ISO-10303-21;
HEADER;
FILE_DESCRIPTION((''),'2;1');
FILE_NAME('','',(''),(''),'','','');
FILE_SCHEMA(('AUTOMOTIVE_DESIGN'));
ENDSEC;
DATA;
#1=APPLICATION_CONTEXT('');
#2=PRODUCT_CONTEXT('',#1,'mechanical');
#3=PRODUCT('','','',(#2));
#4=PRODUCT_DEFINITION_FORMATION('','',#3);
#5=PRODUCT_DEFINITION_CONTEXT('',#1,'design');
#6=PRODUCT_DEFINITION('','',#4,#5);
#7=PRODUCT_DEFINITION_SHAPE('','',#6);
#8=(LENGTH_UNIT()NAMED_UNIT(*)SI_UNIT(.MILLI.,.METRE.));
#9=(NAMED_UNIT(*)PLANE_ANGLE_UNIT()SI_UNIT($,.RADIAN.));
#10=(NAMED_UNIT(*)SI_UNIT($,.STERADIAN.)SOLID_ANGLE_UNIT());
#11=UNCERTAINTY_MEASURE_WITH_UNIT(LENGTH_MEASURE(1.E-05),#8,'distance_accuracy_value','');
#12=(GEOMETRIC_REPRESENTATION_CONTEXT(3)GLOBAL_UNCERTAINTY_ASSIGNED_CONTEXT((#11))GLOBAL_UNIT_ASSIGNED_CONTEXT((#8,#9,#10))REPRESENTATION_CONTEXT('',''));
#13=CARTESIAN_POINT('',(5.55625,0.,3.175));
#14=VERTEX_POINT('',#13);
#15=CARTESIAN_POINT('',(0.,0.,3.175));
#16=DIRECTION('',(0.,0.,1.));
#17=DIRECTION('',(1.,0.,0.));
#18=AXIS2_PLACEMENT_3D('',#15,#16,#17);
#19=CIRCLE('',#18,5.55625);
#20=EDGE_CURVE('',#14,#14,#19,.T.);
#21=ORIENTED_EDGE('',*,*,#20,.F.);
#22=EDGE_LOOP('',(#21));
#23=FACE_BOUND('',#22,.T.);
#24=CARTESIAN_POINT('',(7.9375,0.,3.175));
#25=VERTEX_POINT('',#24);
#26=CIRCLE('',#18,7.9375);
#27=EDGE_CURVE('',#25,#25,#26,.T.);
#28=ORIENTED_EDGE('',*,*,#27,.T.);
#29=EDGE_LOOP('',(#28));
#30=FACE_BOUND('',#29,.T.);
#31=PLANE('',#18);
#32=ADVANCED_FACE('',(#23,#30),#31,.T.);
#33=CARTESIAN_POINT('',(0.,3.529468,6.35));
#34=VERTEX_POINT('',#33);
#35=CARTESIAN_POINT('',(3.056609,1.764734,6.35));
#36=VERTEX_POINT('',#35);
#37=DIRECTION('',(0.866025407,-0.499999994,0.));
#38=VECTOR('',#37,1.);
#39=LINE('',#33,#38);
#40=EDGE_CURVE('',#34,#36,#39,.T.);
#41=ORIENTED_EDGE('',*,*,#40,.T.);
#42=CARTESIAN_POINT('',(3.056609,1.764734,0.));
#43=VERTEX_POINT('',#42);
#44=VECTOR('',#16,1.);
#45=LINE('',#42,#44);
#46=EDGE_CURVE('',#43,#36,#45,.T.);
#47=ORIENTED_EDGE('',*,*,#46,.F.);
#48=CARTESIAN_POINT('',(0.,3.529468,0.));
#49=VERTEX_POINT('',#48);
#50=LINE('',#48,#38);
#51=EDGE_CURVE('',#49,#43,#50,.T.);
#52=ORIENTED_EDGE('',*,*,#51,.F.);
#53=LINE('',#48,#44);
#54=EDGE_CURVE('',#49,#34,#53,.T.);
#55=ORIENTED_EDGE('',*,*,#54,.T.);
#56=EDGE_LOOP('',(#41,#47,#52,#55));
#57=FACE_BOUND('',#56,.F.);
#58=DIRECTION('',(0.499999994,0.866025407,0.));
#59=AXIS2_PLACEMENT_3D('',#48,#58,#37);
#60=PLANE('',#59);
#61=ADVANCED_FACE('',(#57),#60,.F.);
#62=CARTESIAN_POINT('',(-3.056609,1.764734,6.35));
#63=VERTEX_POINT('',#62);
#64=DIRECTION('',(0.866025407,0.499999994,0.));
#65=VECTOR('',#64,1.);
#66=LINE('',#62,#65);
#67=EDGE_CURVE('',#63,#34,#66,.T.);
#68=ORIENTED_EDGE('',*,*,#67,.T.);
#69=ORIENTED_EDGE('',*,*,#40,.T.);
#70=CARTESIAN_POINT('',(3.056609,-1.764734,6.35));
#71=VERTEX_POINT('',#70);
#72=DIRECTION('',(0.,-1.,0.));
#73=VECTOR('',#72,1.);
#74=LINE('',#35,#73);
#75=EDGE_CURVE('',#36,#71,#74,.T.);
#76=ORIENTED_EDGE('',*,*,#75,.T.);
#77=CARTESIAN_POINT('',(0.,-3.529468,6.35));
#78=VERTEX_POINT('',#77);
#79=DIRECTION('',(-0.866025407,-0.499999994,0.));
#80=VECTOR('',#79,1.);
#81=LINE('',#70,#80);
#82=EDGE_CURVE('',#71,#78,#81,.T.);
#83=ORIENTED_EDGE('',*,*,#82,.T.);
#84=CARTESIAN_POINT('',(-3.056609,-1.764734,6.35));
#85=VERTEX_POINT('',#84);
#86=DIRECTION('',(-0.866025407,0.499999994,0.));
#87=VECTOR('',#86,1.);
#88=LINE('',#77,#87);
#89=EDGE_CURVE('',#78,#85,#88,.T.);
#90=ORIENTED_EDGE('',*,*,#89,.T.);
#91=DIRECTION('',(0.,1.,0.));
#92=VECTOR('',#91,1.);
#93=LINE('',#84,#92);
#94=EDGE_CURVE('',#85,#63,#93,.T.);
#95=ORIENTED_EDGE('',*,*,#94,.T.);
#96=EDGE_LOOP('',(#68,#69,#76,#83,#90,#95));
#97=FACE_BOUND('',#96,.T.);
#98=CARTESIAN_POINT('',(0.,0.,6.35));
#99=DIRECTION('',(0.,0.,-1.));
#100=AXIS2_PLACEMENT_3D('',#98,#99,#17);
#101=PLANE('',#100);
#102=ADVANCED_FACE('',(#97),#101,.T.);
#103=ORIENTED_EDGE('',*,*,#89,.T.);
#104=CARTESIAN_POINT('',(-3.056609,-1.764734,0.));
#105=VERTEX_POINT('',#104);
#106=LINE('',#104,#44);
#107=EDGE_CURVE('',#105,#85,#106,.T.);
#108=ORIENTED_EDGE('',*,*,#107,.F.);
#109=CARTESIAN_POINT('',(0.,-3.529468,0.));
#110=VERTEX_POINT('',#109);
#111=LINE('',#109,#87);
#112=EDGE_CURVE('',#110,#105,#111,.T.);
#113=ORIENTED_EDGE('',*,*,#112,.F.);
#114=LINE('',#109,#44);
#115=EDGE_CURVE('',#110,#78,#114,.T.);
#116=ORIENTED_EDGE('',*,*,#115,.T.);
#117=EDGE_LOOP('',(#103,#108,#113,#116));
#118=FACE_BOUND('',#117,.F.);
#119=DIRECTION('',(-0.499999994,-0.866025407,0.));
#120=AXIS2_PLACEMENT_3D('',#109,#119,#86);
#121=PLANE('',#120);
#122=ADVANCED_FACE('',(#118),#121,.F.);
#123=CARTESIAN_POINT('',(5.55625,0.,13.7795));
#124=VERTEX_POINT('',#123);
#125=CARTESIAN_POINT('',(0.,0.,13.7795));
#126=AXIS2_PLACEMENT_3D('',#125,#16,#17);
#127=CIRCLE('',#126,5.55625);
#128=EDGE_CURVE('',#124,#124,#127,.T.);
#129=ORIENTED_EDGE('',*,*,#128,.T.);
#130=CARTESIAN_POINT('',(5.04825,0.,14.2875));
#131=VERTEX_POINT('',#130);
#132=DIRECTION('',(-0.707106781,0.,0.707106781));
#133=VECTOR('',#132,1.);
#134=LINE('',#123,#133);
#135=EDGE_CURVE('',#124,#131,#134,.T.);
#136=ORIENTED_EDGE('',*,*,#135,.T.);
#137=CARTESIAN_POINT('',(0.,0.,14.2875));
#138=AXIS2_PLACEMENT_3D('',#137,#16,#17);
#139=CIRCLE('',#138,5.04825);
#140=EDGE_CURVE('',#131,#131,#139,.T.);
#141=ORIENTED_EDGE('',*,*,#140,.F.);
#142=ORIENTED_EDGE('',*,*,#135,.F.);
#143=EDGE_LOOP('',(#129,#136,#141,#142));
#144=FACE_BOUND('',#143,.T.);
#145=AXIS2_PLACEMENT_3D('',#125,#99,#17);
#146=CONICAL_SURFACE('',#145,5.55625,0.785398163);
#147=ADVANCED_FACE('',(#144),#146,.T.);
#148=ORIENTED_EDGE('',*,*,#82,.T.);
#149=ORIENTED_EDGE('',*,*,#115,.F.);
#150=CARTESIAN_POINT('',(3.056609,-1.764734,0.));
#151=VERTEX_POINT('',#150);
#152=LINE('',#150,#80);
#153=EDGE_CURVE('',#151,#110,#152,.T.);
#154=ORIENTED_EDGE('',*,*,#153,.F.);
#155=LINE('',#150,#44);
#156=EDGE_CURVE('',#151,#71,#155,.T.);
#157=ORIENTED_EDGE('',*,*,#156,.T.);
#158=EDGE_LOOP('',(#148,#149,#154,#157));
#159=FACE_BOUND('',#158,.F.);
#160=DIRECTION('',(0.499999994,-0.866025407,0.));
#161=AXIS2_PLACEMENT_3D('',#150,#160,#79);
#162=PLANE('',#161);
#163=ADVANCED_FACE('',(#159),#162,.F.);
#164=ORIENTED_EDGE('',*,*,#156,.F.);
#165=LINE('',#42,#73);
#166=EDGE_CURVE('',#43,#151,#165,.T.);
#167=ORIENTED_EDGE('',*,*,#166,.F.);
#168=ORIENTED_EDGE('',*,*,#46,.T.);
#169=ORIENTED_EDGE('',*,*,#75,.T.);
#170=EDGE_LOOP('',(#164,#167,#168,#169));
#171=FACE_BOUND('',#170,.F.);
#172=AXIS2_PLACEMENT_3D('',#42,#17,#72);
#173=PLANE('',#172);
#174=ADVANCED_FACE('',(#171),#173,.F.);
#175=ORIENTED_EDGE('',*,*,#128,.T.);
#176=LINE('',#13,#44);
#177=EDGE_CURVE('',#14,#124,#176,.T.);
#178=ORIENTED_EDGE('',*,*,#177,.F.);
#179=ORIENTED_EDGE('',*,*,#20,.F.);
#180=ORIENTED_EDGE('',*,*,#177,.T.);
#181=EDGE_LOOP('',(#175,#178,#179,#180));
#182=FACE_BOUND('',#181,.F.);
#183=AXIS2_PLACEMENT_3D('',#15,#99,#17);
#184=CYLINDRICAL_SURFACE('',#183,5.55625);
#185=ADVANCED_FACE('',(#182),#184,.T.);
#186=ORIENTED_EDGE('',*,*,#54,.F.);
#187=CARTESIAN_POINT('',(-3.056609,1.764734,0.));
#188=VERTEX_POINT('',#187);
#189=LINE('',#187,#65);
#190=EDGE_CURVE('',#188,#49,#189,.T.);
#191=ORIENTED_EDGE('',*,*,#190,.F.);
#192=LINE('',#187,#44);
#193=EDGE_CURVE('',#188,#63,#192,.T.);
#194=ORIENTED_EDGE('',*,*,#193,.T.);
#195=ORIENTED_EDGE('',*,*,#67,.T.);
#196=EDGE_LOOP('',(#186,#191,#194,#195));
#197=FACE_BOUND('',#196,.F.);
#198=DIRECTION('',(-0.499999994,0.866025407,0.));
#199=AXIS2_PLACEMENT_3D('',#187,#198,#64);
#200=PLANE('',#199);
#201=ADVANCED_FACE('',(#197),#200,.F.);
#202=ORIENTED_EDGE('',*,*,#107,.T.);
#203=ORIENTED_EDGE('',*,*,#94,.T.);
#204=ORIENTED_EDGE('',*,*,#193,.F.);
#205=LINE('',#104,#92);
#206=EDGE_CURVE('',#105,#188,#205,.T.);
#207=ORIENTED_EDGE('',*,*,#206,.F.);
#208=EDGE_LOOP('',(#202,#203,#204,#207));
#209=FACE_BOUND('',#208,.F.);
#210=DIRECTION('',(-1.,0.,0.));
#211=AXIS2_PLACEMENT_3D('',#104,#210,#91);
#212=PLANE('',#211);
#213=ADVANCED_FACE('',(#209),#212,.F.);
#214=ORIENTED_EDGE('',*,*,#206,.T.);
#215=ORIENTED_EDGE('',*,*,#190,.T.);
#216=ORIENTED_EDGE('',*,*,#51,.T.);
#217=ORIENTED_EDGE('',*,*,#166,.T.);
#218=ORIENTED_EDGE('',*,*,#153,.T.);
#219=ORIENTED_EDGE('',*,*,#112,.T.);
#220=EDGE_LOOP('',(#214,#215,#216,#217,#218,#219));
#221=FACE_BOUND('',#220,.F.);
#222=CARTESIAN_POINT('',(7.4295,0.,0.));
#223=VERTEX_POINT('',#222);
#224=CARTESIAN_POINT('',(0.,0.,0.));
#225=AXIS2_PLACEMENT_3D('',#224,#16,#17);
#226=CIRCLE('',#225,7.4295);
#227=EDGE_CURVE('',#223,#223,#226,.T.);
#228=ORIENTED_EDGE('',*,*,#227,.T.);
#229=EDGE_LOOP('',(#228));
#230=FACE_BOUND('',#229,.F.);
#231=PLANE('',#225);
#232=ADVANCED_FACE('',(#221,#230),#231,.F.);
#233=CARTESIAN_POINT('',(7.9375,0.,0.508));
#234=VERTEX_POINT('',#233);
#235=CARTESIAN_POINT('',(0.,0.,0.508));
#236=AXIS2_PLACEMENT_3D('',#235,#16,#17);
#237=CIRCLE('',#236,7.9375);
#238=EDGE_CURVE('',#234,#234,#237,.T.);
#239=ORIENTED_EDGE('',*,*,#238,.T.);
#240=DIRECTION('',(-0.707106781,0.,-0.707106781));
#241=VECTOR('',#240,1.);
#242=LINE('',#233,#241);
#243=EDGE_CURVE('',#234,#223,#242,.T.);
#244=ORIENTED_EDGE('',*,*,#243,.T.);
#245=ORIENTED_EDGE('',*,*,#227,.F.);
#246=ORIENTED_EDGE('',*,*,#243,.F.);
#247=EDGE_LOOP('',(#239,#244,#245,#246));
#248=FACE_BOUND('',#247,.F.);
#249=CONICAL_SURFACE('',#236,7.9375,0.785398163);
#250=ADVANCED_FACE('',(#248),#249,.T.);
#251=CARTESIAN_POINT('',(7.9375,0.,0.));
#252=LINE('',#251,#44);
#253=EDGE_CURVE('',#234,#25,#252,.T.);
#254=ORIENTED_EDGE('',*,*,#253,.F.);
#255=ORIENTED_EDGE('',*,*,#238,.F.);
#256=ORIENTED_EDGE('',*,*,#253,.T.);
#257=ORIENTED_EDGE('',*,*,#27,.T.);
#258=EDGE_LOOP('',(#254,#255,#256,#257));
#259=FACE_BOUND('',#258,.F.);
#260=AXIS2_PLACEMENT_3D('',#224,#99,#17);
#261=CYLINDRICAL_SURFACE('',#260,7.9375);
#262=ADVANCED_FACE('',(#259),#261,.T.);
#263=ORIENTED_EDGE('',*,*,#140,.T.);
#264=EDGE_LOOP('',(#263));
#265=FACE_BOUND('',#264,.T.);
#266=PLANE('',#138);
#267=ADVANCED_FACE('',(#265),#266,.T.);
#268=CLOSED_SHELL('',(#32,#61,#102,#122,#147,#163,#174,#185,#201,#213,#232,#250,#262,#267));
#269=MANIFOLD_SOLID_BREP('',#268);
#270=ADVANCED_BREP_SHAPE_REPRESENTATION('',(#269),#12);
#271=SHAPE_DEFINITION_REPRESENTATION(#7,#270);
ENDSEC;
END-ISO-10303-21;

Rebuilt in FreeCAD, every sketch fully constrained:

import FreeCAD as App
import Part
import Sketcher
Q = App.Units.Quantity


def edges_at(feature, points):
    """Names of the edges that pass closest to the given points."""
    edges = feature.Shape.Edges
    near = lambda p: min(range(len(edges)), key=lambda i: edges[i].distToShape(Part.Vertex(*p))[0])
    return sorted({f"Edge{near(p) + 1}" for p in points})

doc = App.newDocument("Part")
params = doc.addObject("Spreadsheet::Sheet", "Params")
for row, (alias, value) in enumerate([
    ("sketch1_diameter", "0.625 in"),
    ("pad1_length", "0.125 in"),
    ("sketch2_diameter", "0.4375 in"),
    ("pad2_length", "0.4375 in"),
    ("pocket1_length", "0.25 in"),
    ("chamfer_size", "0.02 in"),
], start=1):
    params.set(f"A{row}", alias)
    params.set(f"B{row}", "=" + value)
    params.setAlias(f"B{row}", alias)

body = doc.addObject("PartDesign::Body", "Body")

sketch1 = body.newObject("Sketcher::SketchObject", "Sketch")
sketch1.AttachmentSupport = (doc.getObject("XY_Plane"), [""])
sketch1.MapMode = "FlatFace"
sketch1.addGeometry(Part.Circle(App.Vector(0, 0, 0), App.Vector(0, 0, 1), 8), False)
sketch1.addConstraint([
    Sketcher.Constraint("Coincident", 0, 3, -1, 1),
    Sketcher.Constraint("Diameter", 0, Q("0.625 in")),
])
sketch1.setExpression("Constraints[1]", "Params.sketch1_diameter")
pad1 = body.newObject("PartDesign::Pad", "Pad")
pad1.Profile = sketch1
pad1.setExpression("Length", "Params.pad1_length")

sketch2 = body.newObject("Sketcher::SketchObject", "Sketch001")
sketch2.AttachmentSupport = (doc.getObject("XY_Plane"), [""])
sketch2.MapMode = "FlatFace"
sketch2.AttachmentOffset = App.Placement(App.Vector(0, 0, 0.125 * 25.4), App.Rotation())
sketch2.addGeometry(Part.Circle(App.Vector(0, 0, 0), App.Vector(0, 0, 1), 6), False)
sketch2.addConstraint([
    Sketcher.Constraint("Coincident", 0, 3, -1, 1),
    Sketcher.Constraint("Diameter", 0, Q("0.4375 in")),
])
sketch2.setExpression("Constraints[1]", "Params.sketch2_diameter")
pad2 = body.newObject("PartDesign::Pad", "Pad001")
pad2.Profile = sketch2
pad2.setExpression("Length", "Params.pad2_length")

sketch3 = body.newObject("Sketcher::SketchObject", "Sketch002")
sketch3.AttachmentSupport = (doc.getObject("XY_Plane"), [""])
sketch3.MapMode = "FlatFace"
sketch3.addGeometry([
    Part.LineSegment(App.Vector(-3.1, 1.8, 0), App.Vector(0, 3.5, 0)),
    Part.LineSegment(App.Vector(0, 3.5, 0), App.Vector(3.1, 1.8, 0)),
    Part.LineSegment(App.Vector(3.1, 1.8, 0), App.Vector(3.1, -1.8, 0)),
    Part.LineSegment(App.Vector(3.1, -1.8, 0), App.Vector(0, -3.5, 0)),
    Part.LineSegment(App.Vector(0, -3.5, 0), App.Vector(-3.1, -1.8, 0)),
    Part.LineSegment(App.Vector(-3.1, -1.8, 0), App.Vector(-3.1, 1.8, 0)),
], False)
sketch3.addConstraint([
    Sketcher.Constraint("Coincident", 0, 2, 1, 1),
    Sketcher.Constraint("Coincident", 1, 2, 2, 1),
    Sketcher.Constraint("Coincident", 2, 2, 3, 1),
    Sketcher.Constraint("Coincident", 3, 2, 4, 1),
    Sketcher.Constraint("Coincident", 4, 2, 5, 1),
    Sketcher.Constraint("Coincident", 5, 2, 0, 1),
    Sketcher.Constraint("Vertical", 2),
    Sketcher.Constraint("Vertical", 5),
    Sketcher.Constraint("Symmetric", 0, 2, 3, 2, -1, 1),
    Sketcher.Constraint("Symmetric", 1, 2, 4, 2, -1, 1),
    Sketcher.Constraint("PointOnObject", 0, 2, -2),
    Sketcher.Constraint("Parallel", 0, 3),
    Sketcher.Constraint("Horizontal", 2, 2, 4, 2),
    Sketcher.Constraint("Angle", 0, Q("30 deg")),
    Sketcher.Constraint("DistanceY", 2, 2, 2, 1, Q("3.529468 mm")),
    Sketcher.Constraint("Distance", 0, Q("3.529468 mm")),
])
pocket1 = body.newObject("PartDesign::Pocket", "Pocket")
pocket1.Profile = sketch3
pocket1.setExpression("Length", "Params.pocket1_length")
pocket1.Reversed = True
doc.recompute()

chamfer = body.newObject("PartDesign::Chamfer", "Chamfer")
chamfer.Base = (pocket1, edges_at(pocket1, [(-5.556, 0, 14.287), (-7.938, 0, 0)]))
chamfer.setExpression("Size", "Params.chamfer_size")

doc.recompute()
